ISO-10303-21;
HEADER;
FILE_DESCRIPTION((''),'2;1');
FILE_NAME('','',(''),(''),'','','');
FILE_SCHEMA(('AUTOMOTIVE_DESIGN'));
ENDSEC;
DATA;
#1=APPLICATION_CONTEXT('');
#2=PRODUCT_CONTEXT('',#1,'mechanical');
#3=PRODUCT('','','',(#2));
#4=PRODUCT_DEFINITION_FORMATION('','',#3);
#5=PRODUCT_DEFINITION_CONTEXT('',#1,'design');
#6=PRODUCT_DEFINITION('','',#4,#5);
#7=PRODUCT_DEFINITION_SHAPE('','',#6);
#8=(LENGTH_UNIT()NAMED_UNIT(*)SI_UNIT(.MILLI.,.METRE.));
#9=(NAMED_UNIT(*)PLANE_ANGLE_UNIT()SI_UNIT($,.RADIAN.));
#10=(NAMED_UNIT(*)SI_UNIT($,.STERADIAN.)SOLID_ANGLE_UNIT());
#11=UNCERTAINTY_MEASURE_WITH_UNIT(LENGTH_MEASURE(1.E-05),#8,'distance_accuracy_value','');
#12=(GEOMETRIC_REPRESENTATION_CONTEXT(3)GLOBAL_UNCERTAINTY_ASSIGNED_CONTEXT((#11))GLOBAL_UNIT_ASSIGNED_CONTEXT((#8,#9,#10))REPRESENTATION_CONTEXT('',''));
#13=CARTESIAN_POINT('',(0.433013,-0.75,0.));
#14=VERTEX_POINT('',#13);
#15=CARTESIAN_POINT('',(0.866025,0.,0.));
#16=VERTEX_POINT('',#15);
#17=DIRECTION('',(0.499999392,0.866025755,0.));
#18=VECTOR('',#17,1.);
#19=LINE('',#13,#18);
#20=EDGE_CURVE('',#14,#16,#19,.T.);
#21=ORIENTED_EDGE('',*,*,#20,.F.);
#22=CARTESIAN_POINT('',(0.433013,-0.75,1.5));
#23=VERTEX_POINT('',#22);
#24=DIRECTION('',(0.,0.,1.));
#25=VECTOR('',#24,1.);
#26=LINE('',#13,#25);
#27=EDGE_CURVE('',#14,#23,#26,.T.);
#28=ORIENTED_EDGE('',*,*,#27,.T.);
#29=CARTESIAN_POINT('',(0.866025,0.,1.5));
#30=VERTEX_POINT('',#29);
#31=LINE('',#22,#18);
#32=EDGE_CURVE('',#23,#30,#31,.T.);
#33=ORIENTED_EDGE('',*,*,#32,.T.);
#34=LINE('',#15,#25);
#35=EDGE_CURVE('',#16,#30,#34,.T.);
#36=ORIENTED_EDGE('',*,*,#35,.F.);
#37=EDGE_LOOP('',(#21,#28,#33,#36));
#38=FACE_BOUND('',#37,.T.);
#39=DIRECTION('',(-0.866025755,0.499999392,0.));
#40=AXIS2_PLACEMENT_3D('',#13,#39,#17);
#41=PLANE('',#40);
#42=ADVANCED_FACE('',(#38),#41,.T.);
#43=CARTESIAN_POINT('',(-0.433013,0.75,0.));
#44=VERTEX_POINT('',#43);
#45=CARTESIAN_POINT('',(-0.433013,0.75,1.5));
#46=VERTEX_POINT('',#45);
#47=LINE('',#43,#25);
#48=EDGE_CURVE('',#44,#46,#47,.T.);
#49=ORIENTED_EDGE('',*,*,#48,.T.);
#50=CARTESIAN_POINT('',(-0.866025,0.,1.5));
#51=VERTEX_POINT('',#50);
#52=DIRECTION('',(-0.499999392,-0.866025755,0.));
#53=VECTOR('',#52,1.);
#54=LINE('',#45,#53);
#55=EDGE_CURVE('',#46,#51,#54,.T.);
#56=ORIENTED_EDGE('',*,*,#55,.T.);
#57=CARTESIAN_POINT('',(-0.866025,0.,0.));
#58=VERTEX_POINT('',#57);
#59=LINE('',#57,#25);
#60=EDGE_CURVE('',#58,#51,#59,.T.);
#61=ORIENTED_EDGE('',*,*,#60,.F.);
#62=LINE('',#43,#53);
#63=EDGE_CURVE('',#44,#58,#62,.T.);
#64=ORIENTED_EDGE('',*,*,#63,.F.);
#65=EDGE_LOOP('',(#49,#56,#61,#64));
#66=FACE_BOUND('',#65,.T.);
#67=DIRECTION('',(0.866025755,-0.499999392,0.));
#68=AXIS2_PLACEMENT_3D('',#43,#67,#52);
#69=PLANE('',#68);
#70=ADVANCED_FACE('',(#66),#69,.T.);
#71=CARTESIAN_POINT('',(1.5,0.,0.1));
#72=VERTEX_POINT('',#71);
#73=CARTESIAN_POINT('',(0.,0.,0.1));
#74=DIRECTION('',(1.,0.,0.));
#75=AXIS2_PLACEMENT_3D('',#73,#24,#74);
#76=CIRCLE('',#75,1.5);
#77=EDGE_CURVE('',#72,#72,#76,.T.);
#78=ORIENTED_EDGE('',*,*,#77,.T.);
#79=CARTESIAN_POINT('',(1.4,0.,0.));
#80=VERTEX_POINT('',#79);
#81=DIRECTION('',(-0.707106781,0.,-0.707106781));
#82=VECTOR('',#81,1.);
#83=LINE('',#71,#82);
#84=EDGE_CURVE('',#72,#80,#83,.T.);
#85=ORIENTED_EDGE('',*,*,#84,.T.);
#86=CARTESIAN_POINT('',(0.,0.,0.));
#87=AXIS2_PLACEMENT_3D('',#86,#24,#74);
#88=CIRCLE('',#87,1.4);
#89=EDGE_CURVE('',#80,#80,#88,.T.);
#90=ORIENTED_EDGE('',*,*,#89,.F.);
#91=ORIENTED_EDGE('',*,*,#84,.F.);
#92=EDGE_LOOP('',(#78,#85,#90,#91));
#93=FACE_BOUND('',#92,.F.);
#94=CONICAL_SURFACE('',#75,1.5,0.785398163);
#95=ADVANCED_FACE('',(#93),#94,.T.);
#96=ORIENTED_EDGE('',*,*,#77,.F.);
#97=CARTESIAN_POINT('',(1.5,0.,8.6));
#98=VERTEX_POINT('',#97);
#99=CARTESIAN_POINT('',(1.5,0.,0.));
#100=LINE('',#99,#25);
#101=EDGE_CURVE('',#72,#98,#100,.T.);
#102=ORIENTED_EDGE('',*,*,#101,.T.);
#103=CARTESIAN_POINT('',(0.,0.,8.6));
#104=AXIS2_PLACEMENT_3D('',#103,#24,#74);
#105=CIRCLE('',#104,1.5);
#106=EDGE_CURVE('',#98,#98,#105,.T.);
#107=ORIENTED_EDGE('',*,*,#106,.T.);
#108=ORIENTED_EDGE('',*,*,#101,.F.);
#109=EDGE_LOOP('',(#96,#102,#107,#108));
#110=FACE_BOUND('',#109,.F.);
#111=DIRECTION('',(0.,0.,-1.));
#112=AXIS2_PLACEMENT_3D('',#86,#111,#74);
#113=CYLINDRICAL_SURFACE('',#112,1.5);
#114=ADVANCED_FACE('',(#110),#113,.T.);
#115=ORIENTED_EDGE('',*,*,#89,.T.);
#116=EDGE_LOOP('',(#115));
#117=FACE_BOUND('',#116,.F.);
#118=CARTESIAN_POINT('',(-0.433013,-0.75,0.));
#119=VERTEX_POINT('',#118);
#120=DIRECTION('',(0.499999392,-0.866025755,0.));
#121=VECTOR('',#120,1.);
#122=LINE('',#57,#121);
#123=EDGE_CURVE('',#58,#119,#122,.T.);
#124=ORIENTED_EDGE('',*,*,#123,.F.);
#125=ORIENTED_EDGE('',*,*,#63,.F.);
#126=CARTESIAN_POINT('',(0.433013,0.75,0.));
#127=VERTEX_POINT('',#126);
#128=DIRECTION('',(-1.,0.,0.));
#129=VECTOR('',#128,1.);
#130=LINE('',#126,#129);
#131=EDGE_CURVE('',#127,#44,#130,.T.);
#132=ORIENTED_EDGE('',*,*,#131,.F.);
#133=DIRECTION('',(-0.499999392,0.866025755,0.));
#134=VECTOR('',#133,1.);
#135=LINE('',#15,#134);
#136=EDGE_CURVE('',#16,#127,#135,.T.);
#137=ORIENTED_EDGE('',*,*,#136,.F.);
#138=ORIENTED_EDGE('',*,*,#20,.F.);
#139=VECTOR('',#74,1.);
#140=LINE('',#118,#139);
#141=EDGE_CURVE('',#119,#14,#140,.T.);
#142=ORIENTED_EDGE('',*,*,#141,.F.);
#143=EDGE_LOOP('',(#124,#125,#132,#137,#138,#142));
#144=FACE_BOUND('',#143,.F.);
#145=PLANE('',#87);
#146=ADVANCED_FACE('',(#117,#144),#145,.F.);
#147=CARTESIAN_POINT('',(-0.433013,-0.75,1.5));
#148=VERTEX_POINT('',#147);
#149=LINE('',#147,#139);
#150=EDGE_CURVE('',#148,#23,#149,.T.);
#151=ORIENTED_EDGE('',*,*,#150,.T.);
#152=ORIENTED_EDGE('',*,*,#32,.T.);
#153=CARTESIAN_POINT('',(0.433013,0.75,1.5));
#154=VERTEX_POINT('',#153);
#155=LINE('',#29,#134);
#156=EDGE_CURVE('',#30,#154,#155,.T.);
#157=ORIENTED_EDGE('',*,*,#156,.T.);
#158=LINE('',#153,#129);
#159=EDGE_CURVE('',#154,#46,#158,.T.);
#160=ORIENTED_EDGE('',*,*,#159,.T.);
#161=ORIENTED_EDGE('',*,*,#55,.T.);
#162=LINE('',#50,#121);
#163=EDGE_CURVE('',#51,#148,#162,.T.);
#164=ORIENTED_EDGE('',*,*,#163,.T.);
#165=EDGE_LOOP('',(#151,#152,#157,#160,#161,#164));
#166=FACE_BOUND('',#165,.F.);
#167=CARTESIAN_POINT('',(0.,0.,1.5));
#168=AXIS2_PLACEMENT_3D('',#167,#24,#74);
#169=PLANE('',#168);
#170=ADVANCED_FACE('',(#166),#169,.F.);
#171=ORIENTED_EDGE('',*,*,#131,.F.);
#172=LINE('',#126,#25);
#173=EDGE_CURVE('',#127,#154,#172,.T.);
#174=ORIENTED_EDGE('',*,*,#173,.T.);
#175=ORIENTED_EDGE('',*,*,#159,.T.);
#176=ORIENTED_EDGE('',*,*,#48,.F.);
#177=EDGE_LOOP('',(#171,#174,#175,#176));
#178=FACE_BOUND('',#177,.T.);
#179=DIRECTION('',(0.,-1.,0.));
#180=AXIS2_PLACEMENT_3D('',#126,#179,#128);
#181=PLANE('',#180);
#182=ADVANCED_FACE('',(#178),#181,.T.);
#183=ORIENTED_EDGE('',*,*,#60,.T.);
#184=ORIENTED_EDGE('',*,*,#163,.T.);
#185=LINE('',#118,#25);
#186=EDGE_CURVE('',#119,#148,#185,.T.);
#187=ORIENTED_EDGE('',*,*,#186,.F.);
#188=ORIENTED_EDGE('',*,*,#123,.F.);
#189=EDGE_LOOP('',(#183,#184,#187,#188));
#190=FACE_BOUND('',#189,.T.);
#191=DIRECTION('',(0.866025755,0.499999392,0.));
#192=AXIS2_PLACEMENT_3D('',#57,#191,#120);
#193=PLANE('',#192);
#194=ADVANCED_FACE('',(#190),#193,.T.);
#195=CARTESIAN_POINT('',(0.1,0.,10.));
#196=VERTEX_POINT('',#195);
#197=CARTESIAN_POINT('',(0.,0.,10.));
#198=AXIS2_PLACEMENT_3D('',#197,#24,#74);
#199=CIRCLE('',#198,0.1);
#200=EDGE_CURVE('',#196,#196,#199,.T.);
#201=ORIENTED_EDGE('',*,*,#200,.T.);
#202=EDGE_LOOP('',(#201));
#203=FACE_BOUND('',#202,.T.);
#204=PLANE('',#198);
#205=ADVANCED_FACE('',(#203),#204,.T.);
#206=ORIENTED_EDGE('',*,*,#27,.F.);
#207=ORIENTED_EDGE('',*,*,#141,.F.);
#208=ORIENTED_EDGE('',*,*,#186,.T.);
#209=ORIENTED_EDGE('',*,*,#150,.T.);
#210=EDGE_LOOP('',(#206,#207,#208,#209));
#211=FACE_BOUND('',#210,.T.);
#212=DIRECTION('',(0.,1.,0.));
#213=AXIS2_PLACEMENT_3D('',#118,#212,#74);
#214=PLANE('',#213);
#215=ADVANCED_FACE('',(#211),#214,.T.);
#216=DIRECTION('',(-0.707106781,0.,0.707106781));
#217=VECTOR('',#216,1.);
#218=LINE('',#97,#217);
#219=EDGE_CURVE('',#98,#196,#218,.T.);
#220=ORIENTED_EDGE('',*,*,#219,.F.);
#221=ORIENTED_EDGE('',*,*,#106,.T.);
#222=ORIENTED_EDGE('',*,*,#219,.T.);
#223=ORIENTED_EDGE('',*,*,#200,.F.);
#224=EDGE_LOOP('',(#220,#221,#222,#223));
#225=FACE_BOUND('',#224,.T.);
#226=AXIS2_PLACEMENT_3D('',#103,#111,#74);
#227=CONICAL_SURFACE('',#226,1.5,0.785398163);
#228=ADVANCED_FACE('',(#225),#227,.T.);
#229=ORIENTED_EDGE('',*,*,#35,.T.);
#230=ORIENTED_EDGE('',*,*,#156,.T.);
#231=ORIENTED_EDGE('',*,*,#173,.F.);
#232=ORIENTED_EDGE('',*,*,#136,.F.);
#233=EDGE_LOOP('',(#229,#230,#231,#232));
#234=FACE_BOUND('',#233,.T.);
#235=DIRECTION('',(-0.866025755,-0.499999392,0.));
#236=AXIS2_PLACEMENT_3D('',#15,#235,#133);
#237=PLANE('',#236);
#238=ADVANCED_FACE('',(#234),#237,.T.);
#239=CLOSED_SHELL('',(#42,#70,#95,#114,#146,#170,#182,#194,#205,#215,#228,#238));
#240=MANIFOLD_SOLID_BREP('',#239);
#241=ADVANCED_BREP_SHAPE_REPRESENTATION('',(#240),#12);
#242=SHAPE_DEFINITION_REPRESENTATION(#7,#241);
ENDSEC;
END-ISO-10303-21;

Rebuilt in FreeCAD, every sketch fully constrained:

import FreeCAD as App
import Part
import Sketcher
Q = App.Units.Quantity


def edges_at(feature, points):
    """Names of the edges that pass closest to the given points."""
    edges = feature.Shape.Edges
    near = lambda p: min(range(len(edges)), key=lambda i: edges[i].distToShape(Part.Vertex(*p))[0])
    return sorted({f"Edge{near(p) + 1}" for p in points})


def add_polygon(sketch, points):
    """Adds a closed chain of lines whose ends are joined by coincident constraints."""
    first, n = sketch.GeometryCount, len(points)
    for a, b in zip(points, points[1:] + points[:1]):
        sketch.addGeometry(Part.LineSegment(App.Vector(*a, 0), App.Vector(*b, 0)), False)
    for i in range(n):
        sketch.addConstraint(Sketcher.Constraint("Coincident", first + i, 2, first + (i + 1) % n, 1))

doc = App.newDocument("Part")
params = doc.addObject("Spreadsheet::Sheet", "Params")
for row, (alias, value) in enumerate([
    ("sketch1_diameter", "3 mm"),
    ("pad1_length", "10 mm"),
    ("chamfer_size", "1.4 mm"),
    ("pocket1_length", "1.5 mm"),
    ("chamfer2_size", "0.1 mm"),
], start=1):
    params.set(f"A{row}", alias)
    params.set(f"B{row}", "=" + value)
    params.setAlias(f"B{row}", alias)

body = doc.addObject("PartDesign::Body", "Body")

sketch1 = body.newObject("Sketcher::SketchObject", "Sketch")
sketch1.AttachmentSupport = (doc.getObject("XY_Plane"), [""])
sketch1.MapMode = "FlatFace"
sketch1.addGeometry(Part.Circle(App.Vector(0, 0, 0), App.Vector(0, 0, 1), 1.5), False)
sketch1.addConstraint([
    Sketcher.Constraint("Coincident", 0, 3, -1, 1),
    Sketcher.Constraint("Diameter", 0, Q("3 mm")),
])
sketch1.setExpression("Constraints[1]", "Params.sketch1_diameter")
pad1 = body.newObject("PartDesign::Pad", "Pad")
pad1.Profile = sketch1
pad1.setExpression("Length", "Params.pad1_length")
doc.recompute()

chamfer = body.newObject("PartDesign::Chamfer", "Chamfer")
chamfer.Base = (pad1, edges_at(pad1, [(-1.5, 0, 10)]))
chamfer.setExpression("Size", "Params.chamfer_size")

sketch2 = body.newObject("Sketcher::SketchObject", "Sketch001")
sketch2.AttachmentSupport = (doc.getObject("XY_Plane"), [""])
sketch2.MapMode = "FlatFace"
add_polygon(sketch2, [(0.4, -0.8), (0.9, 0), (0.4, 0.8), (-0.4, 0.8), (-0.9, 0), (-0.4, -0.8)])
sketch2.addConstraint([
    Sketcher.Constraint("Horizontal", 2),
    Sketcher.Constraint("Horizontal", 5),
    Sketcher.Constraint("Symmetric", 0, 2, 3, 2, -1, 1),
    Sketcher.Constraint("Symmetric", 1, 2, 4, 2, -1, 1),
    Sketcher.Constraint("PointOnObject", 0, 2, -1),
    Sketcher.Constraint("Parallel", 0, 3),
    Sketcher.Constraint("Vertical", 2, 2, 4, 2),
    Sketcher.Constraint("DistanceY", 4, 2, 2, 2, Q("1.5 mm")),
    Sketcher.Constraint("DistanceX", 2, 2, 2, 1, Q("0.866026 mm")),
    Sketcher.Constraint("DistanceX", 3, 2, 0, 2, Q("1.73205 mm")),
])
pocket1 = body.newObject("PartDesign::Pocket", "Pocket")
pocket1.Profile = sketch2
pocket1.setExpression("Length", "Params.pocket1_length")
pocket1.Reversed = True
doc.recompute()

chamfer2 = body.newObject("PartDesign::Chamfer", "Chamfer001")
chamfer2.Base = (pocket1, edges_at(pocket1, [(-1.5, 0, 0)]))
chamfer2.setExpression("Size", "Params.chamfer2_size")

doc.recompute()
